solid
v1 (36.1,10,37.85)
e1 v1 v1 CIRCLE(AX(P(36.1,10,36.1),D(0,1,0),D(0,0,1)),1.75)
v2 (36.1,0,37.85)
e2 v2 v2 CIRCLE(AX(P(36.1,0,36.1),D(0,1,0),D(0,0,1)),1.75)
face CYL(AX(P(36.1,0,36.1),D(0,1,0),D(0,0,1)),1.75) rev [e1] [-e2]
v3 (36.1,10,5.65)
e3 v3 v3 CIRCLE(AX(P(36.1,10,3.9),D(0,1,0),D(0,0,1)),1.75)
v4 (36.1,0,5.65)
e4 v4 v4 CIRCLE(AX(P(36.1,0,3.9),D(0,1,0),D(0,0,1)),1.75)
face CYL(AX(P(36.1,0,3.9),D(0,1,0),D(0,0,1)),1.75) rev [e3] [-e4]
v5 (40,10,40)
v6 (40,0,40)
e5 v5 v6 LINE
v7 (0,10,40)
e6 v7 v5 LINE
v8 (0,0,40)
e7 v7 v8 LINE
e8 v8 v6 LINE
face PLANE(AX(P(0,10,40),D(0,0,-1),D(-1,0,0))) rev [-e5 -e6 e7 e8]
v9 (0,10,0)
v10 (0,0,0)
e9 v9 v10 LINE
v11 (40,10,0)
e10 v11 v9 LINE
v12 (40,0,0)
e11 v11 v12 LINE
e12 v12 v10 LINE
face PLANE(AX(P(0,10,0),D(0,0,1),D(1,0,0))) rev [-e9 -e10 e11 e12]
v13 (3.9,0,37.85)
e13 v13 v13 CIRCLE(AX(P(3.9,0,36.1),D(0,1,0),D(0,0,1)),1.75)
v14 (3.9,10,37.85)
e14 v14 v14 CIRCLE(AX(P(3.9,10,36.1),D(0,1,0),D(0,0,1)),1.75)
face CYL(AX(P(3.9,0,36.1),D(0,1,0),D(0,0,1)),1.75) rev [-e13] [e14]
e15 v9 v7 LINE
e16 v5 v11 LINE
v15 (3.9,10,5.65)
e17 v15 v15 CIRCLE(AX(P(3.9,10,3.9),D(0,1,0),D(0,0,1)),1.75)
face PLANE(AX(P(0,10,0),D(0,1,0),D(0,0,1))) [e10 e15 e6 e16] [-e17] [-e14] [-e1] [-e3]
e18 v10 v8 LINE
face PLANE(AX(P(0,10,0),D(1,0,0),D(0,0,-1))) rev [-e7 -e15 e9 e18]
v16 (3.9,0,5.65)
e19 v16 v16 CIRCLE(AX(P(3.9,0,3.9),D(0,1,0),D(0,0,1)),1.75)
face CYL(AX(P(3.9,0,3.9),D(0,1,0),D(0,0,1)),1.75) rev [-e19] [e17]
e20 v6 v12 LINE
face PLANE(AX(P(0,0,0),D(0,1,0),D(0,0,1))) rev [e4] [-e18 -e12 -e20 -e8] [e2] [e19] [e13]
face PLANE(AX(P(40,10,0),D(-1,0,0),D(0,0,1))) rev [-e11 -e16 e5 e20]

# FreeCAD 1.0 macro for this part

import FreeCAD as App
import Part
import Sketcher
from FreeCAD import Vector


def add_polygon(sketch, points):
    """Adds a closed chain of lines whose ends are joined by coincident constraints."""
    first, n = sketch.GeometryCount, len(points)
    for a, b in zip(points, points[1:] + points[:1]):
        sketch.addGeometry(Part.LineSegment(App.Vector(*a, 0), App.Vector(*b, 0)), False)
    for i in range(n):
        sketch.addConstraint(Sketcher.Constraint("Coincident", first + i, 2, first + (i + 1) % n, 1))

doc = App.newDocument("Part")
params = doc.addObject("Spreadsheet::Sheet", "Params")
for row, (alias, value) in enumerate([
    ("sketch1_width", "40 mm"),
    ("pad1_length", "10 mm"),
    ("sketch2_diameter", "3.5 mm"),
    ("pocket1_length", "10 mm"),
], start=1):
    params.set(f"A{row}", alias)
    params.set(f"B{row}", "=" + value)
    params.setAlias(f"B{row}", alias)

body = doc.addObject("PartDesign::Body", "Body")

# Sketch on XZ plane
sketch1 = doc.addObject("Sketcher::SketchObject", "Sketch")
body.addObject(sketch1)
sketch1.AttachmentSupport = (doc.XZ_Plane, [""])
sketch1.MapMode = "FlatFace"
add_polygon(sketch1, [(0, 0), (0, 40), (40, 40), (40, 0)])  # lines 0-3
sketch1.addConstraint(Sketcher.Constraint("Vertical", 0))
sketch1.addConstraint(Sketcher.Constraint("Horizontal", 1))
sketch1.addConstraint(Sketcher.Constraint("Vertical", 2))
sketch1.addConstraint(Sketcher.Constraint("Horizontal", 3))
sketch1.addConstraint(Sketcher.Constraint("Coincident", 3, 2, -1, 1))
sketch1.addConstraint(Sketcher.Constraint("Equal", 3, 0))
sketch1.addConstraint(Sketcher.Constraint("DistanceX", 1, 1, 1, 2, 40.0))
sketch1.setExpression("Constraints[10]", "Params.sketch1_width")
pad1 = doc.addObject("PartDesign::Pad", "Pad")
body.addObject(pad1)
pad1.Profile = sketch1
pad1.setExpression("Length", "Params.pad1_length")
pad1.Reversed = True

# Sketch on XZ plane
sketch2 = doc.addObject("Sketcher::SketchObject", "Sketch001")
body.addObject(sketch2)
sketch2.AttachmentSupport = (doc.XZ_Plane, [""])
sketch2.MapMode = "FlatFace"
sketch2.AttachmentOffset = App.Placement(Vector(0, 0, -10), App.Rotation())
sketch2.addGeometry(Part.Circle(Vector(3.9, 3.9, 0), Vector(0, 0, 1), 1.8), False)
sketch2.addGeometry(Part.Circle(Vector(36.1, 3.9, 0), Vector(0, 0, 1), 1.8), False)
sketch2.addGeometry(Part.Circle(Vector(36.1, 36.1, 0), Vector(0, 0, 1), 1.8), False)
sketch2.addGeometry(Part.Circle(Vector(3.9, 36.1, 0), Vector(0, 0, 1), 1.8), False)
sketch2.addConstraint(Sketcher.Constraint("Equal", 0, 1))
sketch2.addConstraint(Sketcher.Constraint("Equal", 1, 2))
sketch2.addConstraint(Sketcher.Constraint("Equal", 2, 3))
sketch2.addConstraint(Sketcher.Constraint("Horizontal", 0, 3, 1, 3))
sketch2.addConstraint(Sketcher.Constraint("Horizontal", 2, 3, 3, 3))
sketch2.addConstraint(Sketcher.Constraint("Vertical", 1, 3, 2, 3))
sketch2.addConstraint(Sketcher.Constraint("Vertical", 0, 3, 3, 3))
sketch2.addConstraint(Sketcher.Constraint("Diameter", 0, 3.5))
sketch2.addConstraint(Sketcher.Constraint("DistanceX", -1, 1, 0, 3, 3.9))
sketch2.addConstraint(Sketcher.Constraint("DistanceY", -1, 1, 0, 3, 3.9))
sketch2.addConstraint(Sketcher.Constraint("DistanceX", -1, 1, 1, 3, 36.1))
sketch2.addConstraint(Sketcher.Constraint("DistanceY", -1, 1, 2, 3, 36.1))
sketch2.setExpression("Constraints[7]", "Params.sketch2_diameter")
pocket1 = doc.addObject("PartDesign::Pocket", "Pocket")
body.addObject(pocket1)
pocket1.Profile = sketch2
pocket1.setExpression("Length", "Params.pocket1_length")
pocket1.Reversed = True

doc.recompute()
